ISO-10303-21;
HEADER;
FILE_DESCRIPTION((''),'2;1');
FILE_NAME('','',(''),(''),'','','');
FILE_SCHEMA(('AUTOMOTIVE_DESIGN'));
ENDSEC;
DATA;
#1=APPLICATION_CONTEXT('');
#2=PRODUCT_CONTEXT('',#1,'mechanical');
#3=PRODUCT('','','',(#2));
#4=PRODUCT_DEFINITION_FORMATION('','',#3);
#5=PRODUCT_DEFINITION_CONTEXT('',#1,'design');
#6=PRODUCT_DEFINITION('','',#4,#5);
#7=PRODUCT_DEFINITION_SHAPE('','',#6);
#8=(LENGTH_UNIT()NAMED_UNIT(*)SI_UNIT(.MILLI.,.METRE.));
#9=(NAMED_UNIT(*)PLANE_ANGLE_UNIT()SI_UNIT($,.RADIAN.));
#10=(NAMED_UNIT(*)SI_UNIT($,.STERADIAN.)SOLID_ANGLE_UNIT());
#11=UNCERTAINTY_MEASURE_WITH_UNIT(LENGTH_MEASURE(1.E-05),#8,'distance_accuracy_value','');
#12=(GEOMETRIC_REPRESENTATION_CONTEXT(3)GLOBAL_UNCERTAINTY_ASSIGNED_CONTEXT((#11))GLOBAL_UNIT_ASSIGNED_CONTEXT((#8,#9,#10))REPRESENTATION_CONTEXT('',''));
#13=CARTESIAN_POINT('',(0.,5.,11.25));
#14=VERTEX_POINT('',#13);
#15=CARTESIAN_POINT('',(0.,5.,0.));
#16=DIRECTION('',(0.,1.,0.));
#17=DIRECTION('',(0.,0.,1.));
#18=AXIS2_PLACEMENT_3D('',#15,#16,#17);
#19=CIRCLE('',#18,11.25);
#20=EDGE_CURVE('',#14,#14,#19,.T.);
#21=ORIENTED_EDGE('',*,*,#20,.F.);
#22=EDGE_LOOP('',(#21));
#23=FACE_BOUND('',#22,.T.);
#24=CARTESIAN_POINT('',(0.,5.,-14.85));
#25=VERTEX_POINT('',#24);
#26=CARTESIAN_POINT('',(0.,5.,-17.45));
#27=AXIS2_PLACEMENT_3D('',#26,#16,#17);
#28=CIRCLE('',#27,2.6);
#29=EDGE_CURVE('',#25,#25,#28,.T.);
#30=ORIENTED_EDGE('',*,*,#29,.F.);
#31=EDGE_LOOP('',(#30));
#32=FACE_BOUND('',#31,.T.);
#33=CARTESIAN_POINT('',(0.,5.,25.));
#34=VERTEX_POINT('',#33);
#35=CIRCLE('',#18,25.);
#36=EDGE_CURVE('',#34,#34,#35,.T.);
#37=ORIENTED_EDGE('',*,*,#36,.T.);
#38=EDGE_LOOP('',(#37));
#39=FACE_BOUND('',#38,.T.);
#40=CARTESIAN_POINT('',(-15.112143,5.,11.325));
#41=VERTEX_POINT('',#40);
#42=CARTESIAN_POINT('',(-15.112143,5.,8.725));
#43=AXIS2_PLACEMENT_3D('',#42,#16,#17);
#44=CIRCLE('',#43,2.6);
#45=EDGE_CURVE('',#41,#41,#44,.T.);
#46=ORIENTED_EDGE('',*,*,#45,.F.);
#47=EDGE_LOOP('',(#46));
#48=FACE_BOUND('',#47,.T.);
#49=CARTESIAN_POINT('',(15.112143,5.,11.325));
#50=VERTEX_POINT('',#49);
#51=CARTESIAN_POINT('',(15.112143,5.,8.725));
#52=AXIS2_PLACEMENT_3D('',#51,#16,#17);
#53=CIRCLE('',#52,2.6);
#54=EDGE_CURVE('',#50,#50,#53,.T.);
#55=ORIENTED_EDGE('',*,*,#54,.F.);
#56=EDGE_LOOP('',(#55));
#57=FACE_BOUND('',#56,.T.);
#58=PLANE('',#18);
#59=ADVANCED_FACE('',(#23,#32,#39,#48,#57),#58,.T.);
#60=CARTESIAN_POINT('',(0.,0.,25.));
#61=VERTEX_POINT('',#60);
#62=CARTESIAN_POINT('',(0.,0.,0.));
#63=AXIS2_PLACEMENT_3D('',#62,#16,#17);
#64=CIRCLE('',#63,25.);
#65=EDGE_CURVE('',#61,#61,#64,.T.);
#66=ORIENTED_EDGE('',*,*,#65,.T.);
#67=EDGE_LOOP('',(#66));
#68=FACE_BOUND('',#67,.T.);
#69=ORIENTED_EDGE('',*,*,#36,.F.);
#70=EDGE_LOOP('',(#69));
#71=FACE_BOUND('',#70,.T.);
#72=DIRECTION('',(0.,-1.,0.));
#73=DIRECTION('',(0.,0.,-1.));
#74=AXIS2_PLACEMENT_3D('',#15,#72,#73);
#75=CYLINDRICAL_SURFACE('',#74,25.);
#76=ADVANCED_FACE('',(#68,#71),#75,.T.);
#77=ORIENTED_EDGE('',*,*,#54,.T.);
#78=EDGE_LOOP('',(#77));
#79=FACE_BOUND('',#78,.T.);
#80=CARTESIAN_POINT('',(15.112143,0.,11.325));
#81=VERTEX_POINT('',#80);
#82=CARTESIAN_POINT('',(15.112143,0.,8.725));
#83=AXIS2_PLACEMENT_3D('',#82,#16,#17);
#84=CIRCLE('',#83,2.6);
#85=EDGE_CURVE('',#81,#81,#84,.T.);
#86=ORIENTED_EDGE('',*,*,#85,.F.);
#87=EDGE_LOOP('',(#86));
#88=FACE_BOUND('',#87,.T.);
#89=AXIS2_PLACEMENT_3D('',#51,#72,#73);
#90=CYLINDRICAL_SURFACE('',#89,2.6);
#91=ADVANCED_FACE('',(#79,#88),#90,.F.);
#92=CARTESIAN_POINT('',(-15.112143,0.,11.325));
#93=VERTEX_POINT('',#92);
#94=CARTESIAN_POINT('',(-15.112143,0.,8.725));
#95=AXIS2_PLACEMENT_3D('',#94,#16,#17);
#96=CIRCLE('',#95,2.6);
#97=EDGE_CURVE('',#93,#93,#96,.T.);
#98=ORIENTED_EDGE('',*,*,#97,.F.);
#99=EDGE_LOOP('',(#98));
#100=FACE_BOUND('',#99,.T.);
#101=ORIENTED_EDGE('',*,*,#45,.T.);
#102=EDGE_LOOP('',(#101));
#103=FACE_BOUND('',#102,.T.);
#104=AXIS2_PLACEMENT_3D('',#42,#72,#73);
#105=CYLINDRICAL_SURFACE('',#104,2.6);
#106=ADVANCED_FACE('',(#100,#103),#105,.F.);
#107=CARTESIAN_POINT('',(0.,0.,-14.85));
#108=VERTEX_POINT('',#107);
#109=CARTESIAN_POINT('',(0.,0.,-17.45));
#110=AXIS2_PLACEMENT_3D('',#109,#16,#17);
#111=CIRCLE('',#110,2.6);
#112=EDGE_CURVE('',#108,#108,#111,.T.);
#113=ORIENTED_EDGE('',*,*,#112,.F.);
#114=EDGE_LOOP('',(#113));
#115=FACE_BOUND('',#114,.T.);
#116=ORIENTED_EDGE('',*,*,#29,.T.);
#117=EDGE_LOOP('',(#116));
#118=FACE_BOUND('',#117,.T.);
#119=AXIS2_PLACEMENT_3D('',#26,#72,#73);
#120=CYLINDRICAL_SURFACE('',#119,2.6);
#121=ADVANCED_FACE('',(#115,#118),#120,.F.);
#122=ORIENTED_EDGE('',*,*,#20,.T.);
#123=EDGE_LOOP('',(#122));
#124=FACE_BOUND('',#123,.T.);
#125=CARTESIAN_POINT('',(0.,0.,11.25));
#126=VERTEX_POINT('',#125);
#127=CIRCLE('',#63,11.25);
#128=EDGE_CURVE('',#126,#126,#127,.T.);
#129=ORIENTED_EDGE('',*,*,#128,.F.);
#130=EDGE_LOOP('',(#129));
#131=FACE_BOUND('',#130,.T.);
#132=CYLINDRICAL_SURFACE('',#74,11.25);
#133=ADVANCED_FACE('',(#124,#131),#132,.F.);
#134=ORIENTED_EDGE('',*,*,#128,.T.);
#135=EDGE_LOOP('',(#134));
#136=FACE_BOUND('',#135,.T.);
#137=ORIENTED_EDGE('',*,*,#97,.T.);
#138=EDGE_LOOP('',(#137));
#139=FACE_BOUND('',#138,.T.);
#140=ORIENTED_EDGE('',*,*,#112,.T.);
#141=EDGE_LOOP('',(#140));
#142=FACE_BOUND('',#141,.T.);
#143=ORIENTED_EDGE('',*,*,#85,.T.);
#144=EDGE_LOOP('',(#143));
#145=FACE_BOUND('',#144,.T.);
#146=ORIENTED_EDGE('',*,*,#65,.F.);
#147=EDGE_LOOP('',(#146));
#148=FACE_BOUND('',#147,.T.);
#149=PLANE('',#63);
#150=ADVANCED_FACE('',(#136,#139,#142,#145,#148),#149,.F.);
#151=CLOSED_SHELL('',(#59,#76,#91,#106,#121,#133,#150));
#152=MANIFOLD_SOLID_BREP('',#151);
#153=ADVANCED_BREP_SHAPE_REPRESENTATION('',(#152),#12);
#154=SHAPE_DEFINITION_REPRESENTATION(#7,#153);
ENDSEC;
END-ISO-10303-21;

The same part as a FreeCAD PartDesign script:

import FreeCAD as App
import Part
import Sketcher
Q = App.Units.Quantity

doc = App.newDocument("Part")
body = doc.addObject("PartDesign::Body", "Body")

sketch1 = body.newObject("Sketcher::SketchObject", "Sketch")
sketch1.AttachmentSupport = (doc.getObject("XZ_Plane"), [""])
sketch1.MapMode = "FlatFace"
sketch1.addGeometry([
    Part.Circle(App.Vector(0, 0, 0), App.Vector(0, 0, 1), 25),
    Part.Circle(App.Vector(0, -17.4, 0), App.Vector(0, 0, 1), 2.6),
    Part.Circle(App.Vector(-15.1, 8.7, 0), App.Vector(0, 0, 1), 2.6),
    Part.Circle(App.Vector(0, 0, 0), App.Vector(0, 0, 1), 11.2),
    Part.Circle(App.Vector(15.1, 8.7, 0), App.Vector(0, 0, 1), 2.6),
], False)
sketch1.addConstraint([
    Sketcher.Constraint("Coincident", 0, 3, -1, 1),
    Sketcher.Constraint("Coincident", 3, 3, -1, 1),
    Sketcher.Constraint("Equal", 1, 2),
    Sketcher.Constraint("Equal", 2, 4),
    Sketcher.Constraint("Symmetric", 2, 3, 4, 3, -2),
    Sketcher.Constraint("PointOnObject", 1, 3, -2),
    Sketcher.Constraint("Diameter", 0, Q("50 mm")),
    Sketcher.Constraint("Diameter", 1, Q("5.2 mm")),
    Sketcher.Constraint("Diameter", 3, Q("22.5 mm")),
    Sketcher.Constraint("DistanceY", 1, 3, -1, 1, Q("17.45 mm")),
    Sketcher.Constraint("DistanceY", -1, 1, 2, 3, Q("8.725 mm")),
    Sketcher.Constraint("DistanceX", 2, 3, -1, 1, Q("15.112143 mm")),
])
pad1 = body.newObject("PartDesign::Pad", "Pad")
pad1.Profile = sketch1
pad1.Length = 5
pad1.Reversed = True

doc.recompute()
